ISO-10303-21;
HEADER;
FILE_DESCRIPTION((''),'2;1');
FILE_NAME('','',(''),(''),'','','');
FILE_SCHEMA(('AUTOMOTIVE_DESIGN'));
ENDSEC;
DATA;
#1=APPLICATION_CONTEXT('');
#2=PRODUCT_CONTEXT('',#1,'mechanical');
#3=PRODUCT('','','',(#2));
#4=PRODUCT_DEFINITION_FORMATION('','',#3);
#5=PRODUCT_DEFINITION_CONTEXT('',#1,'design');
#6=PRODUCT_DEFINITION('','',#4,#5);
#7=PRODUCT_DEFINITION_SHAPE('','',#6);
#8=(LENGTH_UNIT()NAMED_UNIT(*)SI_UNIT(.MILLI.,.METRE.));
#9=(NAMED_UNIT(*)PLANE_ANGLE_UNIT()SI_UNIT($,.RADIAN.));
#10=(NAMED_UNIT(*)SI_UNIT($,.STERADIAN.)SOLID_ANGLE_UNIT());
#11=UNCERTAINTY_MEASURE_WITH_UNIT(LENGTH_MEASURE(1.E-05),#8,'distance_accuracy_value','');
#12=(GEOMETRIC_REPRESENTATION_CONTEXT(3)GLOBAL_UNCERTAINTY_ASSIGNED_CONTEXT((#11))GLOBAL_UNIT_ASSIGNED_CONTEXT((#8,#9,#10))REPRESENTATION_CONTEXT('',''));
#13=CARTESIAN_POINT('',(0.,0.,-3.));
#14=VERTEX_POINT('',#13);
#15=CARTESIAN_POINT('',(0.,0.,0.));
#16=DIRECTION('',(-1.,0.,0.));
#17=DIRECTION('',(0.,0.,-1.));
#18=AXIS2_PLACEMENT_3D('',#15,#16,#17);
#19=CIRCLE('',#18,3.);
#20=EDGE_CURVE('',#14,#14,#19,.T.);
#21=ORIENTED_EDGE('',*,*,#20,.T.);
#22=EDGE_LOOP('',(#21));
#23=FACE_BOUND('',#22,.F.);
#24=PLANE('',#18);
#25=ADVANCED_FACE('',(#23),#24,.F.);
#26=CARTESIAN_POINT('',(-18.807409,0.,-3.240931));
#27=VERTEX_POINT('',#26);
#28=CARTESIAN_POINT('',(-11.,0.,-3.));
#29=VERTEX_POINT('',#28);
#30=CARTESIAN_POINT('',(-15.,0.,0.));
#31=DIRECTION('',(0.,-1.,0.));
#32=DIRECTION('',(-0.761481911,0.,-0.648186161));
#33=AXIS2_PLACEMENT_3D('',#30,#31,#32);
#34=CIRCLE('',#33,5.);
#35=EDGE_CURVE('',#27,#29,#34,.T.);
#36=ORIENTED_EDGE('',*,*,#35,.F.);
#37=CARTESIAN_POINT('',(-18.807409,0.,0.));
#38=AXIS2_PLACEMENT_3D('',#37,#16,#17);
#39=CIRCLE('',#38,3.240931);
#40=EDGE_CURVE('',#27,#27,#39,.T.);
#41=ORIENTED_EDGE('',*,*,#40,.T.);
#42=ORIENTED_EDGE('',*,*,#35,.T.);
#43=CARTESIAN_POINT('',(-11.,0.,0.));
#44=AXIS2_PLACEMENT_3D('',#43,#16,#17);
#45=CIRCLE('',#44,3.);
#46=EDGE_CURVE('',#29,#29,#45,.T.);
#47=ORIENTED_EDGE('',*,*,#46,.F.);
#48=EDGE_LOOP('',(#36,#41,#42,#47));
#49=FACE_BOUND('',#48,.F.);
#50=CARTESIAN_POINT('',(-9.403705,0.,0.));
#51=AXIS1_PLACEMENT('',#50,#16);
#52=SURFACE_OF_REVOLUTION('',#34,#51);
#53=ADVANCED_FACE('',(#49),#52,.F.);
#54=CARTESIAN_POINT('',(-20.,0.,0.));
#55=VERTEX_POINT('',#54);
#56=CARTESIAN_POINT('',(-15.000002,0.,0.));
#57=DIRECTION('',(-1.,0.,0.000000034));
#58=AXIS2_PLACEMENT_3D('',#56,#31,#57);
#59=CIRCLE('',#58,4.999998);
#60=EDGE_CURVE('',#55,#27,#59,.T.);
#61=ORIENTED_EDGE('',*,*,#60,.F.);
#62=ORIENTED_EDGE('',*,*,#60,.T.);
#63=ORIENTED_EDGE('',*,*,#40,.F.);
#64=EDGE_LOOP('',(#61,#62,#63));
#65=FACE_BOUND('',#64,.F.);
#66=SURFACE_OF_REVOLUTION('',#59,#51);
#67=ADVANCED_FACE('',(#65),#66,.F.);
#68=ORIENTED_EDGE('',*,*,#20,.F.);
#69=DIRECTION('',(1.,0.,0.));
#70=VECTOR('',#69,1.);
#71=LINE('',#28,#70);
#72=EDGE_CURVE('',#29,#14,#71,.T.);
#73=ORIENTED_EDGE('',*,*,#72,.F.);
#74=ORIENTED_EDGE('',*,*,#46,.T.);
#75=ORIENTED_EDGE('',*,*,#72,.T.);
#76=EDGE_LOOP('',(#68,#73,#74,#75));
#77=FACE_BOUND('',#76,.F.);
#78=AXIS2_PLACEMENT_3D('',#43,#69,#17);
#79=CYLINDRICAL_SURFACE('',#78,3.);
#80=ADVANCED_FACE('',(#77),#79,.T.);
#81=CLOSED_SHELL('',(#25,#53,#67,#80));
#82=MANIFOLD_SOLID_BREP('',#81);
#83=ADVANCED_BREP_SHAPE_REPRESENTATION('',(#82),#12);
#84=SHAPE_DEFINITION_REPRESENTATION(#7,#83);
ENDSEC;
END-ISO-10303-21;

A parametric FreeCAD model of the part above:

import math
import FreeCAD as App
import Part
import Sketcher

doc = App.newDocument("Part")
body = doc.addObject("PartDesign::Body", "Body")

# Sketch on XZ plane
sketch1 = doc.addObject("Sketcher::SketchObject", "Sketch")
body.addObject(sketch1)
sketch1.AttachmentSupport = (doc.XZ_Plane, [""])
sketch1.MapMode = "FlatFace"
sketch1.addGeometry(Part.LineSegment(App.Vector(0, -3, 0), App.Vector(0, 0, 0)), False)
sketch1.addGeometry(Part.LineSegment(App.Vector(0, 0, 0), App.Vector(-20, 0, 0)), False)
sketch1.addGeometry(Part.ArcOfCircle(Part.Circle(App.Vector(-15, 0, 0), App.Vector(0, 0, 1), 5), math.radians(180), math.radians(220)), False)
sketch1.addGeometry(Part.ArcOfCircle(Part.Circle(App.Vector(-15, 0, 0), App.Vector(0, 0, 1), 5), math.radians(-140), math.radians(-37)), False)
sketch1.addGeometry(Part.LineSegment(App.Vector(-11, -3, 0), App.Vector(0, -3, 0)), False)
sketch1.addConstraint(Sketcher.Constraint("Coincident", 0, 2, 1, 1))
sketch1.addConstraint(Sketcher.Constraint("Coincident", 1, 2, 2, 1))
sketch1.addConstraint(Sketcher.Constraint("Tangent", 2, 2, 3, 1))
sketch1.addConstraint(Sketcher.Constraint("Coincident", 3, 2, 4, 1))
sketch1.addConstraint(Sketcher.Constraint("Coincident", 4, 2, 0, 1))
sketch1.addConstraint(Sketcher.Constraint("Vertical", 0))
sketch1.addConstraint(Sketcher.Constraint("Horizontal", 1))
sketch1.addConstraint(Sketcher.Constraint("Horizontal", 4))
sketch1.addConstraint(Sketcher.Constraint("Coincident", 0, 2, -1, 1))
sketch1.addConstraint(Sketcher.Constraint("Equal", 2, 3))
sketch1.addConstraint(Sketcher.Constraint("PointOnObject", 2, 3, -1))
sketch1.addConstraint(Sketcher.Constraint("Radius", 2, 4.999998))
sketch1.addConstraint(Sketcher.Constraint("DistanceX", 1, 2, 1, 1, 20.0))
sketch1.addConstraint(Sketcher.Constraint("DistanceX", 4, 1, 4, 2, 11.0))
sketch1.addConstraint(Sketcher.Constraint("DistanceX", 2, 2, -1, 1, 18.807409))
revolution = doc.addObject("PartDesign::Revolution", "Revolution")
body.addObject(revolution)
revolution.Profile = sketch1
revolution.ReferenceAxis = (sketch1, ["H_Axis"])
revolution.Angle = 360

doc.recompute()
